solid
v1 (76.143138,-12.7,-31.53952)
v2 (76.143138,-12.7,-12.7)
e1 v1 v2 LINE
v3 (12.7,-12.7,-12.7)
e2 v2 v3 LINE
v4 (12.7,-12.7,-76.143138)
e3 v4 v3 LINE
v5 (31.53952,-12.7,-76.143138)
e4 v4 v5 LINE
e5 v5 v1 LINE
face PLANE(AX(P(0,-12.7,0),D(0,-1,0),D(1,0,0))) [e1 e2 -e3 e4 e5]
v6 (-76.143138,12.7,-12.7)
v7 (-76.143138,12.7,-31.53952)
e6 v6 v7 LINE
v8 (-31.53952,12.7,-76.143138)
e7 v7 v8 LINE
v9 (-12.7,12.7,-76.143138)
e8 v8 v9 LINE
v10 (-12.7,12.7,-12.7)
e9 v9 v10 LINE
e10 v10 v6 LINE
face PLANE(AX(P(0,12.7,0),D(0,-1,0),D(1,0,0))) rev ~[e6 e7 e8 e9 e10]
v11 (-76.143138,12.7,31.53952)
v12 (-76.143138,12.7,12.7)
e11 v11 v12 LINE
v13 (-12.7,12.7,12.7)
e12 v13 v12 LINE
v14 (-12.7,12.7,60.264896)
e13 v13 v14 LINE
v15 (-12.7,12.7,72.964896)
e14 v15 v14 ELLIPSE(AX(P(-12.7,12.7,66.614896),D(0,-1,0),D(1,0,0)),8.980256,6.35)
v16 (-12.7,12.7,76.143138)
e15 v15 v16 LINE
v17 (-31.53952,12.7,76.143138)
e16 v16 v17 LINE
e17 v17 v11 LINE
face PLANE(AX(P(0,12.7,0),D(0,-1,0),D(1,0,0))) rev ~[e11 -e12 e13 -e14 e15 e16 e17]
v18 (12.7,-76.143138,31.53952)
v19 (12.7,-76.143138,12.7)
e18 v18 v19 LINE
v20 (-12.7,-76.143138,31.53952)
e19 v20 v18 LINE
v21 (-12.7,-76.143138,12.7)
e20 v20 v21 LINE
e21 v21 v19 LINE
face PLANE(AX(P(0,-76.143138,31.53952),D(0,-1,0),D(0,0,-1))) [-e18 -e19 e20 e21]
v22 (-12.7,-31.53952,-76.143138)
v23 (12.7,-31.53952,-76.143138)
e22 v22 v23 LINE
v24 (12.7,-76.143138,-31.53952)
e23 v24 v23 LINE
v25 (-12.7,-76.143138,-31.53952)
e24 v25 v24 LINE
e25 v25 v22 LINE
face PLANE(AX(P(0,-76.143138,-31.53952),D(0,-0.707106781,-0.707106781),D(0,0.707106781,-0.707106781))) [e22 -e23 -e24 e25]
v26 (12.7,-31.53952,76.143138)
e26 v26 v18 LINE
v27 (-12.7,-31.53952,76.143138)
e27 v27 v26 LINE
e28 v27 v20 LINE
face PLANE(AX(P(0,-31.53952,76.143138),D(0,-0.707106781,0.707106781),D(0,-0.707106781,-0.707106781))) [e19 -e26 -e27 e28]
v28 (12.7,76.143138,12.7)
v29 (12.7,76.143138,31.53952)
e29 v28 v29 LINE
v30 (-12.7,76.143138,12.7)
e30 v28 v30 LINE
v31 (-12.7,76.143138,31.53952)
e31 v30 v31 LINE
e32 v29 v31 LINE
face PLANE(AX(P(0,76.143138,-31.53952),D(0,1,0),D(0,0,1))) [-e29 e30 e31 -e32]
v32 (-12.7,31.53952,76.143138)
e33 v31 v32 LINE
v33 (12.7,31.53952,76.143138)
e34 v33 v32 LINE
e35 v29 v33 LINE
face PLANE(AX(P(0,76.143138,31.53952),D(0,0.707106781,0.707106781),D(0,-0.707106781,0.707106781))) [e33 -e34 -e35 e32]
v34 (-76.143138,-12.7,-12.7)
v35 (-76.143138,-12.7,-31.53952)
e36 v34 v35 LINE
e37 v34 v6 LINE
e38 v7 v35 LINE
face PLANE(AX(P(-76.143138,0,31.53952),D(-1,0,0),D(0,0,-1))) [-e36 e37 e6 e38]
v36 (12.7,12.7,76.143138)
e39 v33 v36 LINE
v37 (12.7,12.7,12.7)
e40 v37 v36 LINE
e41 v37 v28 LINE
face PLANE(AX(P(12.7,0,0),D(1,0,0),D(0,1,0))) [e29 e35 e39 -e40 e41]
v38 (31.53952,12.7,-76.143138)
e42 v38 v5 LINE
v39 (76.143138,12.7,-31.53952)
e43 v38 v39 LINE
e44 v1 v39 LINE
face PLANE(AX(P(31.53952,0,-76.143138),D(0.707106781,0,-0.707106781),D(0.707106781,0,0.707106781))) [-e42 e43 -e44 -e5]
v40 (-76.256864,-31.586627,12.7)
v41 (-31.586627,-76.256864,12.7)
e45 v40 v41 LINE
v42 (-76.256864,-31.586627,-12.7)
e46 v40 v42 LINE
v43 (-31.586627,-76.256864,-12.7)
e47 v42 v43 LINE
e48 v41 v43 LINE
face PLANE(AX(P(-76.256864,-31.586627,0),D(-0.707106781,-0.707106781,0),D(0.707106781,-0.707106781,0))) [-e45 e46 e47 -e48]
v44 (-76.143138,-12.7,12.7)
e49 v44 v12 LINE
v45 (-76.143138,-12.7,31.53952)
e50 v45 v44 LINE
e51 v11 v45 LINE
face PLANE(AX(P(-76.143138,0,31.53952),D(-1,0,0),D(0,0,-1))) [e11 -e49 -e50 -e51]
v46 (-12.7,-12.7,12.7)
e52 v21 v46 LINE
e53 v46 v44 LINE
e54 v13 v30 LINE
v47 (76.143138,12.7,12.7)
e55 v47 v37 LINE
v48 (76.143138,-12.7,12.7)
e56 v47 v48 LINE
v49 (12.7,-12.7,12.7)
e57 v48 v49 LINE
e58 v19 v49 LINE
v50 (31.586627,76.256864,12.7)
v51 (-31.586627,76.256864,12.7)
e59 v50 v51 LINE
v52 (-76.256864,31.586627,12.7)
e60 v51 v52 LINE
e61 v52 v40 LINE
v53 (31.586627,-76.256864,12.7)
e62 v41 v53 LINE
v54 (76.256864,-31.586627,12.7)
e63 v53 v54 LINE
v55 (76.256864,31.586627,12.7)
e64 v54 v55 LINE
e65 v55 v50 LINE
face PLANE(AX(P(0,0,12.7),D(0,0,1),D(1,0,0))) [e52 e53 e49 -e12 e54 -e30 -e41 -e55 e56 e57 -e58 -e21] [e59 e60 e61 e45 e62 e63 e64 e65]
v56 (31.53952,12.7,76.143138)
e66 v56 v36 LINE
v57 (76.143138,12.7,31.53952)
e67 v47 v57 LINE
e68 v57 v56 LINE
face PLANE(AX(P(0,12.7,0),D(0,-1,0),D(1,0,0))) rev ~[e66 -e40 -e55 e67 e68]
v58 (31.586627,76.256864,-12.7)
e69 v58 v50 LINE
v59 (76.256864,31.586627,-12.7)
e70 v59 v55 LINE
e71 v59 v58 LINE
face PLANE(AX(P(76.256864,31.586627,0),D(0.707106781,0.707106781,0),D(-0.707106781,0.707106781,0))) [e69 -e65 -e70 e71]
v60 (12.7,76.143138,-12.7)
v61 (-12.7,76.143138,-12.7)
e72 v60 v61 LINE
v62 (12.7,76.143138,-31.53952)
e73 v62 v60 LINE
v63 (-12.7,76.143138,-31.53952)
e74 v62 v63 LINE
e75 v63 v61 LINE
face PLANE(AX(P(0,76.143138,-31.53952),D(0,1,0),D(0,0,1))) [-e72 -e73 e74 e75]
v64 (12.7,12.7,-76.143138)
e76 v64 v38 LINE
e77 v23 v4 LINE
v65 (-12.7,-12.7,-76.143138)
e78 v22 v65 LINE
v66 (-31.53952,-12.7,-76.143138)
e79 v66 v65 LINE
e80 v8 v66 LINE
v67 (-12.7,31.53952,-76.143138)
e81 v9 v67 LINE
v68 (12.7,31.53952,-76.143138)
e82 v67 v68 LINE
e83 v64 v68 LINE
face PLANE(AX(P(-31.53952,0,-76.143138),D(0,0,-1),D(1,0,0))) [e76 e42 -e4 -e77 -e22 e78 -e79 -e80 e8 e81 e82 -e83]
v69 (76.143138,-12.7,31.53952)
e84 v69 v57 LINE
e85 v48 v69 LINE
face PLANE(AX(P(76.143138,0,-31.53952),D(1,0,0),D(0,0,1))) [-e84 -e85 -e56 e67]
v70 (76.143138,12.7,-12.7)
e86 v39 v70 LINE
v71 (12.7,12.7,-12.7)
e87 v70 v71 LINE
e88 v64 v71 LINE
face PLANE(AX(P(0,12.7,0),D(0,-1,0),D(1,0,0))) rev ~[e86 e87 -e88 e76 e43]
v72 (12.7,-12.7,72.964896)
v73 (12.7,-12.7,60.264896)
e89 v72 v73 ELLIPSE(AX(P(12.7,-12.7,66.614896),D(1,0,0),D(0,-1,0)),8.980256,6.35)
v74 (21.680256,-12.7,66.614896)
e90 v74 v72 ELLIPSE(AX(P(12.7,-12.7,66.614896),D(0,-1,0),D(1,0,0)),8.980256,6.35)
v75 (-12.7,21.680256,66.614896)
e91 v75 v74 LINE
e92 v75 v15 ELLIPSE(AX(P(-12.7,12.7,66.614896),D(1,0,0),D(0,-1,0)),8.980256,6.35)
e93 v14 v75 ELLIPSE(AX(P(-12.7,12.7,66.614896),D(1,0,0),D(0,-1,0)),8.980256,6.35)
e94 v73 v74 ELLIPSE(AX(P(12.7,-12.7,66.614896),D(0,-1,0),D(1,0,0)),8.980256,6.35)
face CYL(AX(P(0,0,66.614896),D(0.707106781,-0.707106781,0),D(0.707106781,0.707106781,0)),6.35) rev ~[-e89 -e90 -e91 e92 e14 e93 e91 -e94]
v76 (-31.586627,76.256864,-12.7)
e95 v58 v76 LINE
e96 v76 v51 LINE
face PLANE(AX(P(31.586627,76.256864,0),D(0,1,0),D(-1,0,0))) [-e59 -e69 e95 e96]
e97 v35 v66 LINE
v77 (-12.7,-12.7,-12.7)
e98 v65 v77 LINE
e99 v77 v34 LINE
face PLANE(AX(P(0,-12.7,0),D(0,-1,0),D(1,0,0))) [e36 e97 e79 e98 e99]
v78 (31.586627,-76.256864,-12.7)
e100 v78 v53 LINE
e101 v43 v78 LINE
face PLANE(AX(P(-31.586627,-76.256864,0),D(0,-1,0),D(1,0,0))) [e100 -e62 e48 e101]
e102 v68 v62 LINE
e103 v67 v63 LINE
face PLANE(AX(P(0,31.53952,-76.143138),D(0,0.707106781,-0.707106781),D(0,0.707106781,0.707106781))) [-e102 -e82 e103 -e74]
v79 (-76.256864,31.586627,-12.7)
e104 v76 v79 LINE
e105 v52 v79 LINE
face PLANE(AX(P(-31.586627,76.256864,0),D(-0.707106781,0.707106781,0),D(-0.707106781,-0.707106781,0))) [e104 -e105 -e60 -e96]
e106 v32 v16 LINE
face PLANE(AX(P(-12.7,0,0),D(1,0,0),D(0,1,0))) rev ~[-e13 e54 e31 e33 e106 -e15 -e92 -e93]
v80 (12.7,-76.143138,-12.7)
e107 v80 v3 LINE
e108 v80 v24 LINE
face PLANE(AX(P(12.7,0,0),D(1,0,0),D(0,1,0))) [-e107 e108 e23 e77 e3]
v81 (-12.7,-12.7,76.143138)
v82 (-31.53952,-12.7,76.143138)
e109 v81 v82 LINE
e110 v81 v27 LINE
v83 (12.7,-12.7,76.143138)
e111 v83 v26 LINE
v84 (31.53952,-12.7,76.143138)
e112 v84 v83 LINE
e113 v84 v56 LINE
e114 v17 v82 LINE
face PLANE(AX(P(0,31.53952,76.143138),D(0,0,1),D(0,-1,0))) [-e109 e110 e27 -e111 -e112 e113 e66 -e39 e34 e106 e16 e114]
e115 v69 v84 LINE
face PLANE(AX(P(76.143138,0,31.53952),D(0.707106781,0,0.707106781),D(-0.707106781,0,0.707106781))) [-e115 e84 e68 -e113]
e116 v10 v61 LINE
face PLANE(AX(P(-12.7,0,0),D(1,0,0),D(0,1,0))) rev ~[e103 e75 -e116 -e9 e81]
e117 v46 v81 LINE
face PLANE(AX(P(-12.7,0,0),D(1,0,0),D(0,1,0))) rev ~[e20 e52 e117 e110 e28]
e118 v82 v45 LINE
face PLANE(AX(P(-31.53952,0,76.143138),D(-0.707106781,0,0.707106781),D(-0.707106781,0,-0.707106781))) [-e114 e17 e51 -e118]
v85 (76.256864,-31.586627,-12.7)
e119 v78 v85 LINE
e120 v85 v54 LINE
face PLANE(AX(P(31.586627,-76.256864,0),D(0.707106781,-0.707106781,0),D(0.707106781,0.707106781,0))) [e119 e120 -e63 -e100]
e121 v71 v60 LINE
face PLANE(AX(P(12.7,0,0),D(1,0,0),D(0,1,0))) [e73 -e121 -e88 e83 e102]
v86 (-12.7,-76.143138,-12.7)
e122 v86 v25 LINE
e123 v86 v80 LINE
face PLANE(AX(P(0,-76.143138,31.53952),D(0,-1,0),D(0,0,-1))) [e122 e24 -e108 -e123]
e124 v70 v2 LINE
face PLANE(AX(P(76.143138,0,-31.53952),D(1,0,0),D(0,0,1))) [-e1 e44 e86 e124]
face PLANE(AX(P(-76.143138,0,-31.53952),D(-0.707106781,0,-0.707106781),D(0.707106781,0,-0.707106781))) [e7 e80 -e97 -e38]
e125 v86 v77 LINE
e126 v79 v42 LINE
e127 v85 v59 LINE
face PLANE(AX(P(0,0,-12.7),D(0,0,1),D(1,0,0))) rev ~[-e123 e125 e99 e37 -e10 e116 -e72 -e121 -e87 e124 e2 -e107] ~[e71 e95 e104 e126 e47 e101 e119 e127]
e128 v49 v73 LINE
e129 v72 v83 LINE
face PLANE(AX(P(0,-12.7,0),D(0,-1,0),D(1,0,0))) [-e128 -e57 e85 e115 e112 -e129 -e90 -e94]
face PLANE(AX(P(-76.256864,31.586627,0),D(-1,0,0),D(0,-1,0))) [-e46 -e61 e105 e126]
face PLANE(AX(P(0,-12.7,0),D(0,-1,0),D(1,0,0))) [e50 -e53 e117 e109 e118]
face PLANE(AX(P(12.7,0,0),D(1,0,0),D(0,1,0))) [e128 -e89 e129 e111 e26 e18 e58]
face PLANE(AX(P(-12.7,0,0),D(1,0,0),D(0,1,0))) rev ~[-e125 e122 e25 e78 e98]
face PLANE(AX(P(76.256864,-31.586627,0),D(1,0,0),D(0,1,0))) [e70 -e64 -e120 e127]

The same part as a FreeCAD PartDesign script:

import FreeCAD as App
import Part
import Sketcher
from FreeCAD import Vector
Q = App.Units.Quantity

doc = App.newDocument("Part")
body = doc.addObject("PartDesign::Body", "Body")

sketch1 = body.newObject("Sketcher::SketchObject", "Sketch")
sketch1.AttachmentSupport = (doc.getObject("XZ_Plane"), [""])
sketch1.MapMode = "FlatFace"
sketch1.addGeometry([
    Part.LineSegment(Vector(32, 76, 0), Vector(-32, 76, 0)),
    Part.LineSegment(Vector(-32, 76, 0), Vector(-76, 32, 0)),
    Part.LineSegment(Vector(-76, 32, 0), Vector(-76, -32, 0)),
    Part.LineSegment(Vector(-76, -32, 0), Vector(-32, -76, 0)),
    Part.LineSegment(Vector(-32, -76, 0), Vector(32, -76, 0)),
    Part.LineSegment(Vector(32, -76, 0), Vector(76, -32, 0)),
    Part.LineSegment(Vector(76, -32, 0), Vector(76, 32, 0)),
    Part.LineSegment(Vector(76, 32, 0), Vector(32, 76, 0)),
], False)
sketch1.addConstraint([
    Sketcher.Constraint("Coincident", 0, 2, 1, 1),
    Sketcher.Constraint("Coincident", 1, 2, 2, 1),
    Sketcher.Constraint("Coincident", 2, 2, 3, 1),
    Sketcher.Constraint("Coincident", 3, 2, 4, 1),
    Sketcher.Constraint("Coincident", 4, 2, 5, 1),
    Sketcher.Constraint("Coincident", 5, 2, 6, 1),
    Sketcher.Constraint("Coincident", 6, 2, 7, 1),
    Sketcher.Constraint("Coincident", 7, 2, 0, 1),
    Sketcher.Constraint("Horizontal", 0),
    Sketcher.Constraint("Vertical", 2),
    Sketcher.Constraint("Horizontal", 4),
    Sketcher.Constraint("Vertical", 6),
    Sketcher.Constraint("Symmetric", 0, 2, 4, 2, -1, 1),
    Sketcher.Constraint("Symmetric", 1, 2, 5, 2, -1, 1),
    Sketcher.Constraint("Perpendicular", 1, 3),
    Sketcher.Constraint("Perpendicular", 5, 7),
    Sketcher.Constraint("Horizontal", 2, 2, 5, 2),
    Sketcher.Constraint("Horizontal", 1, 2, 6, 2),
    Sketcher.Constraint("Vertical", 0, 2, 3, 2),
    Sketcher.Constraint("Equal", 4, 2),
    Sketcher.Constraint("DistanceX", 0, 2, 0, 1, 63.079041),
    Sketcher.Constraint("Distance", 1, 63.079041),
])
pad1 = body.newObject("PartDesign::Pad", "Pad")
pad1.Profile = sketch1
pad1.Length = Q("1 in")
pad1.Midplane = True

sketch2 = body.newObject("Sketcher::SketchObject", "Sketch001")
sketch2.AttachmentSupport = (doc.getObject("XY_Plane"), [""])
sketch2.MapMode = "FlatFace"
sketch2.addGeometry([
    Part.LineSegment(Vector(-32, -76, 0), Vector(32, -76, 0)),
    Part.LineSegment(Vector(32, -76, 0), Vector(76, -32, 0)),
    Part.LineSegment(Vector(76, -32, 0), Vector(76, 32, 0)),
    Part.LineSegment(Vector(76, 32, 0), Vector(32, 76, 0)),
    Part.LineSegment(Vector(32, 76, 0), Vector(-32, 76, 0)),
    Part.LineSegment(Vector(-32, 76, 0), Vector(-76, 32, 0)),
    Part.LineSegment(Vector(-76, 32, 0), Vector(-76, -32, 0)),
    Part.LineSegment(Vector(-76, -32, 0), Vector(-32, -76, 0)),
], False)
sketch2.addConstraint([
    Sketcher.Constraint("Coincident", 0, 2, 1, 1),
    Sketcher.Constraint("Coincident", 1, 2, 2, 1),
    Sketcher.Constraint("Coincident", 2, 2, 3, 1),
    Sketcher.Constraint("Coincident", 3, 2, 4, 1),
    Sketcher.Constraint("Coincident", 4, 2, 5, 1),
    Sketcher.Constraint("Coincident", 5, 2, 6, 1),
    Sketcher.Constraint("Coincident", 6, 2, 7, 1),
    Sketcher.Constraint("Coincident", 7, 2, 0, 1),
    Sketcher.Constraint("Horizontal", 0),
    Sketcher.Constraint("Vertical", 2),
    Sketcher.Constraint("Horizontal", 4),
    Sketcher.Constraint("Vertical", 6),
    Sketcher.Constraint("Symmetric", 0, 2, 4, 2, -1, 1),
    Sketcher.Constraint("Symmetric", 1, 2, 5, 2, -1, 1),
    Sketcher.Constraint("Perpendicular", 1, 3),
    Sketcher.Constraint("Perpendicular", 5, 7),
    Sketcher.Constraint("Horizontal", 2, 2, 5, 2),
    Sketcher.Constraint("Horizontal", 1, 2, 6, 2),
    Sketcher.Constraint("Vertical", 0, 2, 3, 2),
    Sketcher.Constraint("Equal", 4, 2),
    Sketcher.Constraint("DistanceX", 0, 1, 0, 2, 63.173254),
    Sketcher.Constraint("DistanceY", 0, 2, 2, 2, 107.843491),
])
pad2 = body.newObject("PartDesign::Pad", "Pad001")
pad2.Profile = sketch2
pad2.Length = Q("1 in")
pad2.Midplane = True

sketch3 = body.newObject("Sketcher::SketchObject", "Sketch002")
sketch3.AttachmentSupport = (doc.getObject("YZ_Plane"), [""])
sketch3.MapMode = "FlatFace"
sketch3.addGeometry([
    Part.LineSegment(Vector(32, 76, 0), Vector(-32, 76, 0)),
    Part.LineSegment(Vector(-32, 76, 0), Vector(-76, 32, 0)),
    Part.LineSegment(Vector(-76, 32, 0), Vector(-76, -32, 0)),
    Part.LineSegment(Vector(-76, -32, 0), Vector(-32, -76, 0)),
    Part.LineSegment(Vector(-32, -76, 0), Vector(32, -76, 0)),
    Part.LineSegment(Vector(32, -76, 0), Vector(76, -32, 0)),
    Part.LineSegment(Vector(76, -32, 0), Vector(76, 32, 0)),
    Part.LineSegment(Vector(76, 32, 0), Vector(32, 76, 0)),
], False)
sketch3.addConstraint([
    Sketcher.Constraint("Coincident", 0, 2, 1, 1),
    Sketcher.Constraint("Coincident", 1, 2, 2, 1),
    Sketcher.Constraint("Coincident", 2, 2, 3, 1),
    Sketcher.Constraint("Coincident", 3, 2, 4, 1),
    Sketcher.Constraint("Coincident", 4, 2, 5, 1),
    Sketcher.Constraint("Coincident", 5, 2, 6, 1),
    Sketcher.Constraint("Coincident", 6, 2, 7, 1),
    Sketcher.Constraint("Coincident", 7, 2, 0, 1),
    Sketcher.Constraint("Horizontal", 0),
    Sketcher.Constraint("Vertical", 2),
    Sketcher.Constraint("Horizontal", 4),
    Sketcher.Constraint("Vertical", 6),
    Sketcher.Constraint("Symmetric", 0, 2, 4, 2, -1, 1),
    Sketcher.Constraint("Symmetric", 1, 2, 5, 2, -1, 1),
    Sketcher.Constraint("Perpendicular", 1, 3),
    Sketcher.Constraint("Perpendicular", 5, 7),
    Sketcher.Constraint("Horizontal", 2, 2, 5, 2),
    Sketcher.Constraint("Horizontal", 1, 2, 6, 2),
    Sketcher.Constraint("Vertical", 0, 2, 3, 2),
    Sketcher.Constraint("Equal", 4, 2),
    Sketcher.Constraint("DistanceX", 0, 2, 0, 1, 63.079041),
    Sketcher.Constraint("Distance", 1, 63.079041),
])
pad3 = body.newObject("PartDesign::Pad", "Pad002")
pad3.Profile = sketch3
pad3.Length = Q("1 in")
pad3.Midplane = True

sketch4 = body.newObject("Sketcher::SketchObject", "Sketch003")
sketch4.Placement = App.Placement(Vector(0, 0, 0), App.Rotation(Vector(0.707106781, 0.707106781, 0), Vector(0, 0, 0.999999999), Vector(0.707106781, -0.707106781, 0), "ZXY"))
sketch4.addGeometry(Part.Circle(Vector(0, 67, 0), Vector(0, 0, 1), 6), False)
sketch4.addConstraint([
    Sketcher.Constraint("PointOnObject", 0, 3, -2),
    Sketcher.Constraint("Diameter", 0, Q("0.5 in")),
    Sketcher.Constraint("DistanceY", -1, 1, 0, 3, 66.614896),
])
pocket1 = body.newObject("PartDesign::Pocket", "Pocket")
pocket1.Profile = sketch4
pocket1.Length = Q("5 in")
pocket1.Midplane = True

doc.recompute()
